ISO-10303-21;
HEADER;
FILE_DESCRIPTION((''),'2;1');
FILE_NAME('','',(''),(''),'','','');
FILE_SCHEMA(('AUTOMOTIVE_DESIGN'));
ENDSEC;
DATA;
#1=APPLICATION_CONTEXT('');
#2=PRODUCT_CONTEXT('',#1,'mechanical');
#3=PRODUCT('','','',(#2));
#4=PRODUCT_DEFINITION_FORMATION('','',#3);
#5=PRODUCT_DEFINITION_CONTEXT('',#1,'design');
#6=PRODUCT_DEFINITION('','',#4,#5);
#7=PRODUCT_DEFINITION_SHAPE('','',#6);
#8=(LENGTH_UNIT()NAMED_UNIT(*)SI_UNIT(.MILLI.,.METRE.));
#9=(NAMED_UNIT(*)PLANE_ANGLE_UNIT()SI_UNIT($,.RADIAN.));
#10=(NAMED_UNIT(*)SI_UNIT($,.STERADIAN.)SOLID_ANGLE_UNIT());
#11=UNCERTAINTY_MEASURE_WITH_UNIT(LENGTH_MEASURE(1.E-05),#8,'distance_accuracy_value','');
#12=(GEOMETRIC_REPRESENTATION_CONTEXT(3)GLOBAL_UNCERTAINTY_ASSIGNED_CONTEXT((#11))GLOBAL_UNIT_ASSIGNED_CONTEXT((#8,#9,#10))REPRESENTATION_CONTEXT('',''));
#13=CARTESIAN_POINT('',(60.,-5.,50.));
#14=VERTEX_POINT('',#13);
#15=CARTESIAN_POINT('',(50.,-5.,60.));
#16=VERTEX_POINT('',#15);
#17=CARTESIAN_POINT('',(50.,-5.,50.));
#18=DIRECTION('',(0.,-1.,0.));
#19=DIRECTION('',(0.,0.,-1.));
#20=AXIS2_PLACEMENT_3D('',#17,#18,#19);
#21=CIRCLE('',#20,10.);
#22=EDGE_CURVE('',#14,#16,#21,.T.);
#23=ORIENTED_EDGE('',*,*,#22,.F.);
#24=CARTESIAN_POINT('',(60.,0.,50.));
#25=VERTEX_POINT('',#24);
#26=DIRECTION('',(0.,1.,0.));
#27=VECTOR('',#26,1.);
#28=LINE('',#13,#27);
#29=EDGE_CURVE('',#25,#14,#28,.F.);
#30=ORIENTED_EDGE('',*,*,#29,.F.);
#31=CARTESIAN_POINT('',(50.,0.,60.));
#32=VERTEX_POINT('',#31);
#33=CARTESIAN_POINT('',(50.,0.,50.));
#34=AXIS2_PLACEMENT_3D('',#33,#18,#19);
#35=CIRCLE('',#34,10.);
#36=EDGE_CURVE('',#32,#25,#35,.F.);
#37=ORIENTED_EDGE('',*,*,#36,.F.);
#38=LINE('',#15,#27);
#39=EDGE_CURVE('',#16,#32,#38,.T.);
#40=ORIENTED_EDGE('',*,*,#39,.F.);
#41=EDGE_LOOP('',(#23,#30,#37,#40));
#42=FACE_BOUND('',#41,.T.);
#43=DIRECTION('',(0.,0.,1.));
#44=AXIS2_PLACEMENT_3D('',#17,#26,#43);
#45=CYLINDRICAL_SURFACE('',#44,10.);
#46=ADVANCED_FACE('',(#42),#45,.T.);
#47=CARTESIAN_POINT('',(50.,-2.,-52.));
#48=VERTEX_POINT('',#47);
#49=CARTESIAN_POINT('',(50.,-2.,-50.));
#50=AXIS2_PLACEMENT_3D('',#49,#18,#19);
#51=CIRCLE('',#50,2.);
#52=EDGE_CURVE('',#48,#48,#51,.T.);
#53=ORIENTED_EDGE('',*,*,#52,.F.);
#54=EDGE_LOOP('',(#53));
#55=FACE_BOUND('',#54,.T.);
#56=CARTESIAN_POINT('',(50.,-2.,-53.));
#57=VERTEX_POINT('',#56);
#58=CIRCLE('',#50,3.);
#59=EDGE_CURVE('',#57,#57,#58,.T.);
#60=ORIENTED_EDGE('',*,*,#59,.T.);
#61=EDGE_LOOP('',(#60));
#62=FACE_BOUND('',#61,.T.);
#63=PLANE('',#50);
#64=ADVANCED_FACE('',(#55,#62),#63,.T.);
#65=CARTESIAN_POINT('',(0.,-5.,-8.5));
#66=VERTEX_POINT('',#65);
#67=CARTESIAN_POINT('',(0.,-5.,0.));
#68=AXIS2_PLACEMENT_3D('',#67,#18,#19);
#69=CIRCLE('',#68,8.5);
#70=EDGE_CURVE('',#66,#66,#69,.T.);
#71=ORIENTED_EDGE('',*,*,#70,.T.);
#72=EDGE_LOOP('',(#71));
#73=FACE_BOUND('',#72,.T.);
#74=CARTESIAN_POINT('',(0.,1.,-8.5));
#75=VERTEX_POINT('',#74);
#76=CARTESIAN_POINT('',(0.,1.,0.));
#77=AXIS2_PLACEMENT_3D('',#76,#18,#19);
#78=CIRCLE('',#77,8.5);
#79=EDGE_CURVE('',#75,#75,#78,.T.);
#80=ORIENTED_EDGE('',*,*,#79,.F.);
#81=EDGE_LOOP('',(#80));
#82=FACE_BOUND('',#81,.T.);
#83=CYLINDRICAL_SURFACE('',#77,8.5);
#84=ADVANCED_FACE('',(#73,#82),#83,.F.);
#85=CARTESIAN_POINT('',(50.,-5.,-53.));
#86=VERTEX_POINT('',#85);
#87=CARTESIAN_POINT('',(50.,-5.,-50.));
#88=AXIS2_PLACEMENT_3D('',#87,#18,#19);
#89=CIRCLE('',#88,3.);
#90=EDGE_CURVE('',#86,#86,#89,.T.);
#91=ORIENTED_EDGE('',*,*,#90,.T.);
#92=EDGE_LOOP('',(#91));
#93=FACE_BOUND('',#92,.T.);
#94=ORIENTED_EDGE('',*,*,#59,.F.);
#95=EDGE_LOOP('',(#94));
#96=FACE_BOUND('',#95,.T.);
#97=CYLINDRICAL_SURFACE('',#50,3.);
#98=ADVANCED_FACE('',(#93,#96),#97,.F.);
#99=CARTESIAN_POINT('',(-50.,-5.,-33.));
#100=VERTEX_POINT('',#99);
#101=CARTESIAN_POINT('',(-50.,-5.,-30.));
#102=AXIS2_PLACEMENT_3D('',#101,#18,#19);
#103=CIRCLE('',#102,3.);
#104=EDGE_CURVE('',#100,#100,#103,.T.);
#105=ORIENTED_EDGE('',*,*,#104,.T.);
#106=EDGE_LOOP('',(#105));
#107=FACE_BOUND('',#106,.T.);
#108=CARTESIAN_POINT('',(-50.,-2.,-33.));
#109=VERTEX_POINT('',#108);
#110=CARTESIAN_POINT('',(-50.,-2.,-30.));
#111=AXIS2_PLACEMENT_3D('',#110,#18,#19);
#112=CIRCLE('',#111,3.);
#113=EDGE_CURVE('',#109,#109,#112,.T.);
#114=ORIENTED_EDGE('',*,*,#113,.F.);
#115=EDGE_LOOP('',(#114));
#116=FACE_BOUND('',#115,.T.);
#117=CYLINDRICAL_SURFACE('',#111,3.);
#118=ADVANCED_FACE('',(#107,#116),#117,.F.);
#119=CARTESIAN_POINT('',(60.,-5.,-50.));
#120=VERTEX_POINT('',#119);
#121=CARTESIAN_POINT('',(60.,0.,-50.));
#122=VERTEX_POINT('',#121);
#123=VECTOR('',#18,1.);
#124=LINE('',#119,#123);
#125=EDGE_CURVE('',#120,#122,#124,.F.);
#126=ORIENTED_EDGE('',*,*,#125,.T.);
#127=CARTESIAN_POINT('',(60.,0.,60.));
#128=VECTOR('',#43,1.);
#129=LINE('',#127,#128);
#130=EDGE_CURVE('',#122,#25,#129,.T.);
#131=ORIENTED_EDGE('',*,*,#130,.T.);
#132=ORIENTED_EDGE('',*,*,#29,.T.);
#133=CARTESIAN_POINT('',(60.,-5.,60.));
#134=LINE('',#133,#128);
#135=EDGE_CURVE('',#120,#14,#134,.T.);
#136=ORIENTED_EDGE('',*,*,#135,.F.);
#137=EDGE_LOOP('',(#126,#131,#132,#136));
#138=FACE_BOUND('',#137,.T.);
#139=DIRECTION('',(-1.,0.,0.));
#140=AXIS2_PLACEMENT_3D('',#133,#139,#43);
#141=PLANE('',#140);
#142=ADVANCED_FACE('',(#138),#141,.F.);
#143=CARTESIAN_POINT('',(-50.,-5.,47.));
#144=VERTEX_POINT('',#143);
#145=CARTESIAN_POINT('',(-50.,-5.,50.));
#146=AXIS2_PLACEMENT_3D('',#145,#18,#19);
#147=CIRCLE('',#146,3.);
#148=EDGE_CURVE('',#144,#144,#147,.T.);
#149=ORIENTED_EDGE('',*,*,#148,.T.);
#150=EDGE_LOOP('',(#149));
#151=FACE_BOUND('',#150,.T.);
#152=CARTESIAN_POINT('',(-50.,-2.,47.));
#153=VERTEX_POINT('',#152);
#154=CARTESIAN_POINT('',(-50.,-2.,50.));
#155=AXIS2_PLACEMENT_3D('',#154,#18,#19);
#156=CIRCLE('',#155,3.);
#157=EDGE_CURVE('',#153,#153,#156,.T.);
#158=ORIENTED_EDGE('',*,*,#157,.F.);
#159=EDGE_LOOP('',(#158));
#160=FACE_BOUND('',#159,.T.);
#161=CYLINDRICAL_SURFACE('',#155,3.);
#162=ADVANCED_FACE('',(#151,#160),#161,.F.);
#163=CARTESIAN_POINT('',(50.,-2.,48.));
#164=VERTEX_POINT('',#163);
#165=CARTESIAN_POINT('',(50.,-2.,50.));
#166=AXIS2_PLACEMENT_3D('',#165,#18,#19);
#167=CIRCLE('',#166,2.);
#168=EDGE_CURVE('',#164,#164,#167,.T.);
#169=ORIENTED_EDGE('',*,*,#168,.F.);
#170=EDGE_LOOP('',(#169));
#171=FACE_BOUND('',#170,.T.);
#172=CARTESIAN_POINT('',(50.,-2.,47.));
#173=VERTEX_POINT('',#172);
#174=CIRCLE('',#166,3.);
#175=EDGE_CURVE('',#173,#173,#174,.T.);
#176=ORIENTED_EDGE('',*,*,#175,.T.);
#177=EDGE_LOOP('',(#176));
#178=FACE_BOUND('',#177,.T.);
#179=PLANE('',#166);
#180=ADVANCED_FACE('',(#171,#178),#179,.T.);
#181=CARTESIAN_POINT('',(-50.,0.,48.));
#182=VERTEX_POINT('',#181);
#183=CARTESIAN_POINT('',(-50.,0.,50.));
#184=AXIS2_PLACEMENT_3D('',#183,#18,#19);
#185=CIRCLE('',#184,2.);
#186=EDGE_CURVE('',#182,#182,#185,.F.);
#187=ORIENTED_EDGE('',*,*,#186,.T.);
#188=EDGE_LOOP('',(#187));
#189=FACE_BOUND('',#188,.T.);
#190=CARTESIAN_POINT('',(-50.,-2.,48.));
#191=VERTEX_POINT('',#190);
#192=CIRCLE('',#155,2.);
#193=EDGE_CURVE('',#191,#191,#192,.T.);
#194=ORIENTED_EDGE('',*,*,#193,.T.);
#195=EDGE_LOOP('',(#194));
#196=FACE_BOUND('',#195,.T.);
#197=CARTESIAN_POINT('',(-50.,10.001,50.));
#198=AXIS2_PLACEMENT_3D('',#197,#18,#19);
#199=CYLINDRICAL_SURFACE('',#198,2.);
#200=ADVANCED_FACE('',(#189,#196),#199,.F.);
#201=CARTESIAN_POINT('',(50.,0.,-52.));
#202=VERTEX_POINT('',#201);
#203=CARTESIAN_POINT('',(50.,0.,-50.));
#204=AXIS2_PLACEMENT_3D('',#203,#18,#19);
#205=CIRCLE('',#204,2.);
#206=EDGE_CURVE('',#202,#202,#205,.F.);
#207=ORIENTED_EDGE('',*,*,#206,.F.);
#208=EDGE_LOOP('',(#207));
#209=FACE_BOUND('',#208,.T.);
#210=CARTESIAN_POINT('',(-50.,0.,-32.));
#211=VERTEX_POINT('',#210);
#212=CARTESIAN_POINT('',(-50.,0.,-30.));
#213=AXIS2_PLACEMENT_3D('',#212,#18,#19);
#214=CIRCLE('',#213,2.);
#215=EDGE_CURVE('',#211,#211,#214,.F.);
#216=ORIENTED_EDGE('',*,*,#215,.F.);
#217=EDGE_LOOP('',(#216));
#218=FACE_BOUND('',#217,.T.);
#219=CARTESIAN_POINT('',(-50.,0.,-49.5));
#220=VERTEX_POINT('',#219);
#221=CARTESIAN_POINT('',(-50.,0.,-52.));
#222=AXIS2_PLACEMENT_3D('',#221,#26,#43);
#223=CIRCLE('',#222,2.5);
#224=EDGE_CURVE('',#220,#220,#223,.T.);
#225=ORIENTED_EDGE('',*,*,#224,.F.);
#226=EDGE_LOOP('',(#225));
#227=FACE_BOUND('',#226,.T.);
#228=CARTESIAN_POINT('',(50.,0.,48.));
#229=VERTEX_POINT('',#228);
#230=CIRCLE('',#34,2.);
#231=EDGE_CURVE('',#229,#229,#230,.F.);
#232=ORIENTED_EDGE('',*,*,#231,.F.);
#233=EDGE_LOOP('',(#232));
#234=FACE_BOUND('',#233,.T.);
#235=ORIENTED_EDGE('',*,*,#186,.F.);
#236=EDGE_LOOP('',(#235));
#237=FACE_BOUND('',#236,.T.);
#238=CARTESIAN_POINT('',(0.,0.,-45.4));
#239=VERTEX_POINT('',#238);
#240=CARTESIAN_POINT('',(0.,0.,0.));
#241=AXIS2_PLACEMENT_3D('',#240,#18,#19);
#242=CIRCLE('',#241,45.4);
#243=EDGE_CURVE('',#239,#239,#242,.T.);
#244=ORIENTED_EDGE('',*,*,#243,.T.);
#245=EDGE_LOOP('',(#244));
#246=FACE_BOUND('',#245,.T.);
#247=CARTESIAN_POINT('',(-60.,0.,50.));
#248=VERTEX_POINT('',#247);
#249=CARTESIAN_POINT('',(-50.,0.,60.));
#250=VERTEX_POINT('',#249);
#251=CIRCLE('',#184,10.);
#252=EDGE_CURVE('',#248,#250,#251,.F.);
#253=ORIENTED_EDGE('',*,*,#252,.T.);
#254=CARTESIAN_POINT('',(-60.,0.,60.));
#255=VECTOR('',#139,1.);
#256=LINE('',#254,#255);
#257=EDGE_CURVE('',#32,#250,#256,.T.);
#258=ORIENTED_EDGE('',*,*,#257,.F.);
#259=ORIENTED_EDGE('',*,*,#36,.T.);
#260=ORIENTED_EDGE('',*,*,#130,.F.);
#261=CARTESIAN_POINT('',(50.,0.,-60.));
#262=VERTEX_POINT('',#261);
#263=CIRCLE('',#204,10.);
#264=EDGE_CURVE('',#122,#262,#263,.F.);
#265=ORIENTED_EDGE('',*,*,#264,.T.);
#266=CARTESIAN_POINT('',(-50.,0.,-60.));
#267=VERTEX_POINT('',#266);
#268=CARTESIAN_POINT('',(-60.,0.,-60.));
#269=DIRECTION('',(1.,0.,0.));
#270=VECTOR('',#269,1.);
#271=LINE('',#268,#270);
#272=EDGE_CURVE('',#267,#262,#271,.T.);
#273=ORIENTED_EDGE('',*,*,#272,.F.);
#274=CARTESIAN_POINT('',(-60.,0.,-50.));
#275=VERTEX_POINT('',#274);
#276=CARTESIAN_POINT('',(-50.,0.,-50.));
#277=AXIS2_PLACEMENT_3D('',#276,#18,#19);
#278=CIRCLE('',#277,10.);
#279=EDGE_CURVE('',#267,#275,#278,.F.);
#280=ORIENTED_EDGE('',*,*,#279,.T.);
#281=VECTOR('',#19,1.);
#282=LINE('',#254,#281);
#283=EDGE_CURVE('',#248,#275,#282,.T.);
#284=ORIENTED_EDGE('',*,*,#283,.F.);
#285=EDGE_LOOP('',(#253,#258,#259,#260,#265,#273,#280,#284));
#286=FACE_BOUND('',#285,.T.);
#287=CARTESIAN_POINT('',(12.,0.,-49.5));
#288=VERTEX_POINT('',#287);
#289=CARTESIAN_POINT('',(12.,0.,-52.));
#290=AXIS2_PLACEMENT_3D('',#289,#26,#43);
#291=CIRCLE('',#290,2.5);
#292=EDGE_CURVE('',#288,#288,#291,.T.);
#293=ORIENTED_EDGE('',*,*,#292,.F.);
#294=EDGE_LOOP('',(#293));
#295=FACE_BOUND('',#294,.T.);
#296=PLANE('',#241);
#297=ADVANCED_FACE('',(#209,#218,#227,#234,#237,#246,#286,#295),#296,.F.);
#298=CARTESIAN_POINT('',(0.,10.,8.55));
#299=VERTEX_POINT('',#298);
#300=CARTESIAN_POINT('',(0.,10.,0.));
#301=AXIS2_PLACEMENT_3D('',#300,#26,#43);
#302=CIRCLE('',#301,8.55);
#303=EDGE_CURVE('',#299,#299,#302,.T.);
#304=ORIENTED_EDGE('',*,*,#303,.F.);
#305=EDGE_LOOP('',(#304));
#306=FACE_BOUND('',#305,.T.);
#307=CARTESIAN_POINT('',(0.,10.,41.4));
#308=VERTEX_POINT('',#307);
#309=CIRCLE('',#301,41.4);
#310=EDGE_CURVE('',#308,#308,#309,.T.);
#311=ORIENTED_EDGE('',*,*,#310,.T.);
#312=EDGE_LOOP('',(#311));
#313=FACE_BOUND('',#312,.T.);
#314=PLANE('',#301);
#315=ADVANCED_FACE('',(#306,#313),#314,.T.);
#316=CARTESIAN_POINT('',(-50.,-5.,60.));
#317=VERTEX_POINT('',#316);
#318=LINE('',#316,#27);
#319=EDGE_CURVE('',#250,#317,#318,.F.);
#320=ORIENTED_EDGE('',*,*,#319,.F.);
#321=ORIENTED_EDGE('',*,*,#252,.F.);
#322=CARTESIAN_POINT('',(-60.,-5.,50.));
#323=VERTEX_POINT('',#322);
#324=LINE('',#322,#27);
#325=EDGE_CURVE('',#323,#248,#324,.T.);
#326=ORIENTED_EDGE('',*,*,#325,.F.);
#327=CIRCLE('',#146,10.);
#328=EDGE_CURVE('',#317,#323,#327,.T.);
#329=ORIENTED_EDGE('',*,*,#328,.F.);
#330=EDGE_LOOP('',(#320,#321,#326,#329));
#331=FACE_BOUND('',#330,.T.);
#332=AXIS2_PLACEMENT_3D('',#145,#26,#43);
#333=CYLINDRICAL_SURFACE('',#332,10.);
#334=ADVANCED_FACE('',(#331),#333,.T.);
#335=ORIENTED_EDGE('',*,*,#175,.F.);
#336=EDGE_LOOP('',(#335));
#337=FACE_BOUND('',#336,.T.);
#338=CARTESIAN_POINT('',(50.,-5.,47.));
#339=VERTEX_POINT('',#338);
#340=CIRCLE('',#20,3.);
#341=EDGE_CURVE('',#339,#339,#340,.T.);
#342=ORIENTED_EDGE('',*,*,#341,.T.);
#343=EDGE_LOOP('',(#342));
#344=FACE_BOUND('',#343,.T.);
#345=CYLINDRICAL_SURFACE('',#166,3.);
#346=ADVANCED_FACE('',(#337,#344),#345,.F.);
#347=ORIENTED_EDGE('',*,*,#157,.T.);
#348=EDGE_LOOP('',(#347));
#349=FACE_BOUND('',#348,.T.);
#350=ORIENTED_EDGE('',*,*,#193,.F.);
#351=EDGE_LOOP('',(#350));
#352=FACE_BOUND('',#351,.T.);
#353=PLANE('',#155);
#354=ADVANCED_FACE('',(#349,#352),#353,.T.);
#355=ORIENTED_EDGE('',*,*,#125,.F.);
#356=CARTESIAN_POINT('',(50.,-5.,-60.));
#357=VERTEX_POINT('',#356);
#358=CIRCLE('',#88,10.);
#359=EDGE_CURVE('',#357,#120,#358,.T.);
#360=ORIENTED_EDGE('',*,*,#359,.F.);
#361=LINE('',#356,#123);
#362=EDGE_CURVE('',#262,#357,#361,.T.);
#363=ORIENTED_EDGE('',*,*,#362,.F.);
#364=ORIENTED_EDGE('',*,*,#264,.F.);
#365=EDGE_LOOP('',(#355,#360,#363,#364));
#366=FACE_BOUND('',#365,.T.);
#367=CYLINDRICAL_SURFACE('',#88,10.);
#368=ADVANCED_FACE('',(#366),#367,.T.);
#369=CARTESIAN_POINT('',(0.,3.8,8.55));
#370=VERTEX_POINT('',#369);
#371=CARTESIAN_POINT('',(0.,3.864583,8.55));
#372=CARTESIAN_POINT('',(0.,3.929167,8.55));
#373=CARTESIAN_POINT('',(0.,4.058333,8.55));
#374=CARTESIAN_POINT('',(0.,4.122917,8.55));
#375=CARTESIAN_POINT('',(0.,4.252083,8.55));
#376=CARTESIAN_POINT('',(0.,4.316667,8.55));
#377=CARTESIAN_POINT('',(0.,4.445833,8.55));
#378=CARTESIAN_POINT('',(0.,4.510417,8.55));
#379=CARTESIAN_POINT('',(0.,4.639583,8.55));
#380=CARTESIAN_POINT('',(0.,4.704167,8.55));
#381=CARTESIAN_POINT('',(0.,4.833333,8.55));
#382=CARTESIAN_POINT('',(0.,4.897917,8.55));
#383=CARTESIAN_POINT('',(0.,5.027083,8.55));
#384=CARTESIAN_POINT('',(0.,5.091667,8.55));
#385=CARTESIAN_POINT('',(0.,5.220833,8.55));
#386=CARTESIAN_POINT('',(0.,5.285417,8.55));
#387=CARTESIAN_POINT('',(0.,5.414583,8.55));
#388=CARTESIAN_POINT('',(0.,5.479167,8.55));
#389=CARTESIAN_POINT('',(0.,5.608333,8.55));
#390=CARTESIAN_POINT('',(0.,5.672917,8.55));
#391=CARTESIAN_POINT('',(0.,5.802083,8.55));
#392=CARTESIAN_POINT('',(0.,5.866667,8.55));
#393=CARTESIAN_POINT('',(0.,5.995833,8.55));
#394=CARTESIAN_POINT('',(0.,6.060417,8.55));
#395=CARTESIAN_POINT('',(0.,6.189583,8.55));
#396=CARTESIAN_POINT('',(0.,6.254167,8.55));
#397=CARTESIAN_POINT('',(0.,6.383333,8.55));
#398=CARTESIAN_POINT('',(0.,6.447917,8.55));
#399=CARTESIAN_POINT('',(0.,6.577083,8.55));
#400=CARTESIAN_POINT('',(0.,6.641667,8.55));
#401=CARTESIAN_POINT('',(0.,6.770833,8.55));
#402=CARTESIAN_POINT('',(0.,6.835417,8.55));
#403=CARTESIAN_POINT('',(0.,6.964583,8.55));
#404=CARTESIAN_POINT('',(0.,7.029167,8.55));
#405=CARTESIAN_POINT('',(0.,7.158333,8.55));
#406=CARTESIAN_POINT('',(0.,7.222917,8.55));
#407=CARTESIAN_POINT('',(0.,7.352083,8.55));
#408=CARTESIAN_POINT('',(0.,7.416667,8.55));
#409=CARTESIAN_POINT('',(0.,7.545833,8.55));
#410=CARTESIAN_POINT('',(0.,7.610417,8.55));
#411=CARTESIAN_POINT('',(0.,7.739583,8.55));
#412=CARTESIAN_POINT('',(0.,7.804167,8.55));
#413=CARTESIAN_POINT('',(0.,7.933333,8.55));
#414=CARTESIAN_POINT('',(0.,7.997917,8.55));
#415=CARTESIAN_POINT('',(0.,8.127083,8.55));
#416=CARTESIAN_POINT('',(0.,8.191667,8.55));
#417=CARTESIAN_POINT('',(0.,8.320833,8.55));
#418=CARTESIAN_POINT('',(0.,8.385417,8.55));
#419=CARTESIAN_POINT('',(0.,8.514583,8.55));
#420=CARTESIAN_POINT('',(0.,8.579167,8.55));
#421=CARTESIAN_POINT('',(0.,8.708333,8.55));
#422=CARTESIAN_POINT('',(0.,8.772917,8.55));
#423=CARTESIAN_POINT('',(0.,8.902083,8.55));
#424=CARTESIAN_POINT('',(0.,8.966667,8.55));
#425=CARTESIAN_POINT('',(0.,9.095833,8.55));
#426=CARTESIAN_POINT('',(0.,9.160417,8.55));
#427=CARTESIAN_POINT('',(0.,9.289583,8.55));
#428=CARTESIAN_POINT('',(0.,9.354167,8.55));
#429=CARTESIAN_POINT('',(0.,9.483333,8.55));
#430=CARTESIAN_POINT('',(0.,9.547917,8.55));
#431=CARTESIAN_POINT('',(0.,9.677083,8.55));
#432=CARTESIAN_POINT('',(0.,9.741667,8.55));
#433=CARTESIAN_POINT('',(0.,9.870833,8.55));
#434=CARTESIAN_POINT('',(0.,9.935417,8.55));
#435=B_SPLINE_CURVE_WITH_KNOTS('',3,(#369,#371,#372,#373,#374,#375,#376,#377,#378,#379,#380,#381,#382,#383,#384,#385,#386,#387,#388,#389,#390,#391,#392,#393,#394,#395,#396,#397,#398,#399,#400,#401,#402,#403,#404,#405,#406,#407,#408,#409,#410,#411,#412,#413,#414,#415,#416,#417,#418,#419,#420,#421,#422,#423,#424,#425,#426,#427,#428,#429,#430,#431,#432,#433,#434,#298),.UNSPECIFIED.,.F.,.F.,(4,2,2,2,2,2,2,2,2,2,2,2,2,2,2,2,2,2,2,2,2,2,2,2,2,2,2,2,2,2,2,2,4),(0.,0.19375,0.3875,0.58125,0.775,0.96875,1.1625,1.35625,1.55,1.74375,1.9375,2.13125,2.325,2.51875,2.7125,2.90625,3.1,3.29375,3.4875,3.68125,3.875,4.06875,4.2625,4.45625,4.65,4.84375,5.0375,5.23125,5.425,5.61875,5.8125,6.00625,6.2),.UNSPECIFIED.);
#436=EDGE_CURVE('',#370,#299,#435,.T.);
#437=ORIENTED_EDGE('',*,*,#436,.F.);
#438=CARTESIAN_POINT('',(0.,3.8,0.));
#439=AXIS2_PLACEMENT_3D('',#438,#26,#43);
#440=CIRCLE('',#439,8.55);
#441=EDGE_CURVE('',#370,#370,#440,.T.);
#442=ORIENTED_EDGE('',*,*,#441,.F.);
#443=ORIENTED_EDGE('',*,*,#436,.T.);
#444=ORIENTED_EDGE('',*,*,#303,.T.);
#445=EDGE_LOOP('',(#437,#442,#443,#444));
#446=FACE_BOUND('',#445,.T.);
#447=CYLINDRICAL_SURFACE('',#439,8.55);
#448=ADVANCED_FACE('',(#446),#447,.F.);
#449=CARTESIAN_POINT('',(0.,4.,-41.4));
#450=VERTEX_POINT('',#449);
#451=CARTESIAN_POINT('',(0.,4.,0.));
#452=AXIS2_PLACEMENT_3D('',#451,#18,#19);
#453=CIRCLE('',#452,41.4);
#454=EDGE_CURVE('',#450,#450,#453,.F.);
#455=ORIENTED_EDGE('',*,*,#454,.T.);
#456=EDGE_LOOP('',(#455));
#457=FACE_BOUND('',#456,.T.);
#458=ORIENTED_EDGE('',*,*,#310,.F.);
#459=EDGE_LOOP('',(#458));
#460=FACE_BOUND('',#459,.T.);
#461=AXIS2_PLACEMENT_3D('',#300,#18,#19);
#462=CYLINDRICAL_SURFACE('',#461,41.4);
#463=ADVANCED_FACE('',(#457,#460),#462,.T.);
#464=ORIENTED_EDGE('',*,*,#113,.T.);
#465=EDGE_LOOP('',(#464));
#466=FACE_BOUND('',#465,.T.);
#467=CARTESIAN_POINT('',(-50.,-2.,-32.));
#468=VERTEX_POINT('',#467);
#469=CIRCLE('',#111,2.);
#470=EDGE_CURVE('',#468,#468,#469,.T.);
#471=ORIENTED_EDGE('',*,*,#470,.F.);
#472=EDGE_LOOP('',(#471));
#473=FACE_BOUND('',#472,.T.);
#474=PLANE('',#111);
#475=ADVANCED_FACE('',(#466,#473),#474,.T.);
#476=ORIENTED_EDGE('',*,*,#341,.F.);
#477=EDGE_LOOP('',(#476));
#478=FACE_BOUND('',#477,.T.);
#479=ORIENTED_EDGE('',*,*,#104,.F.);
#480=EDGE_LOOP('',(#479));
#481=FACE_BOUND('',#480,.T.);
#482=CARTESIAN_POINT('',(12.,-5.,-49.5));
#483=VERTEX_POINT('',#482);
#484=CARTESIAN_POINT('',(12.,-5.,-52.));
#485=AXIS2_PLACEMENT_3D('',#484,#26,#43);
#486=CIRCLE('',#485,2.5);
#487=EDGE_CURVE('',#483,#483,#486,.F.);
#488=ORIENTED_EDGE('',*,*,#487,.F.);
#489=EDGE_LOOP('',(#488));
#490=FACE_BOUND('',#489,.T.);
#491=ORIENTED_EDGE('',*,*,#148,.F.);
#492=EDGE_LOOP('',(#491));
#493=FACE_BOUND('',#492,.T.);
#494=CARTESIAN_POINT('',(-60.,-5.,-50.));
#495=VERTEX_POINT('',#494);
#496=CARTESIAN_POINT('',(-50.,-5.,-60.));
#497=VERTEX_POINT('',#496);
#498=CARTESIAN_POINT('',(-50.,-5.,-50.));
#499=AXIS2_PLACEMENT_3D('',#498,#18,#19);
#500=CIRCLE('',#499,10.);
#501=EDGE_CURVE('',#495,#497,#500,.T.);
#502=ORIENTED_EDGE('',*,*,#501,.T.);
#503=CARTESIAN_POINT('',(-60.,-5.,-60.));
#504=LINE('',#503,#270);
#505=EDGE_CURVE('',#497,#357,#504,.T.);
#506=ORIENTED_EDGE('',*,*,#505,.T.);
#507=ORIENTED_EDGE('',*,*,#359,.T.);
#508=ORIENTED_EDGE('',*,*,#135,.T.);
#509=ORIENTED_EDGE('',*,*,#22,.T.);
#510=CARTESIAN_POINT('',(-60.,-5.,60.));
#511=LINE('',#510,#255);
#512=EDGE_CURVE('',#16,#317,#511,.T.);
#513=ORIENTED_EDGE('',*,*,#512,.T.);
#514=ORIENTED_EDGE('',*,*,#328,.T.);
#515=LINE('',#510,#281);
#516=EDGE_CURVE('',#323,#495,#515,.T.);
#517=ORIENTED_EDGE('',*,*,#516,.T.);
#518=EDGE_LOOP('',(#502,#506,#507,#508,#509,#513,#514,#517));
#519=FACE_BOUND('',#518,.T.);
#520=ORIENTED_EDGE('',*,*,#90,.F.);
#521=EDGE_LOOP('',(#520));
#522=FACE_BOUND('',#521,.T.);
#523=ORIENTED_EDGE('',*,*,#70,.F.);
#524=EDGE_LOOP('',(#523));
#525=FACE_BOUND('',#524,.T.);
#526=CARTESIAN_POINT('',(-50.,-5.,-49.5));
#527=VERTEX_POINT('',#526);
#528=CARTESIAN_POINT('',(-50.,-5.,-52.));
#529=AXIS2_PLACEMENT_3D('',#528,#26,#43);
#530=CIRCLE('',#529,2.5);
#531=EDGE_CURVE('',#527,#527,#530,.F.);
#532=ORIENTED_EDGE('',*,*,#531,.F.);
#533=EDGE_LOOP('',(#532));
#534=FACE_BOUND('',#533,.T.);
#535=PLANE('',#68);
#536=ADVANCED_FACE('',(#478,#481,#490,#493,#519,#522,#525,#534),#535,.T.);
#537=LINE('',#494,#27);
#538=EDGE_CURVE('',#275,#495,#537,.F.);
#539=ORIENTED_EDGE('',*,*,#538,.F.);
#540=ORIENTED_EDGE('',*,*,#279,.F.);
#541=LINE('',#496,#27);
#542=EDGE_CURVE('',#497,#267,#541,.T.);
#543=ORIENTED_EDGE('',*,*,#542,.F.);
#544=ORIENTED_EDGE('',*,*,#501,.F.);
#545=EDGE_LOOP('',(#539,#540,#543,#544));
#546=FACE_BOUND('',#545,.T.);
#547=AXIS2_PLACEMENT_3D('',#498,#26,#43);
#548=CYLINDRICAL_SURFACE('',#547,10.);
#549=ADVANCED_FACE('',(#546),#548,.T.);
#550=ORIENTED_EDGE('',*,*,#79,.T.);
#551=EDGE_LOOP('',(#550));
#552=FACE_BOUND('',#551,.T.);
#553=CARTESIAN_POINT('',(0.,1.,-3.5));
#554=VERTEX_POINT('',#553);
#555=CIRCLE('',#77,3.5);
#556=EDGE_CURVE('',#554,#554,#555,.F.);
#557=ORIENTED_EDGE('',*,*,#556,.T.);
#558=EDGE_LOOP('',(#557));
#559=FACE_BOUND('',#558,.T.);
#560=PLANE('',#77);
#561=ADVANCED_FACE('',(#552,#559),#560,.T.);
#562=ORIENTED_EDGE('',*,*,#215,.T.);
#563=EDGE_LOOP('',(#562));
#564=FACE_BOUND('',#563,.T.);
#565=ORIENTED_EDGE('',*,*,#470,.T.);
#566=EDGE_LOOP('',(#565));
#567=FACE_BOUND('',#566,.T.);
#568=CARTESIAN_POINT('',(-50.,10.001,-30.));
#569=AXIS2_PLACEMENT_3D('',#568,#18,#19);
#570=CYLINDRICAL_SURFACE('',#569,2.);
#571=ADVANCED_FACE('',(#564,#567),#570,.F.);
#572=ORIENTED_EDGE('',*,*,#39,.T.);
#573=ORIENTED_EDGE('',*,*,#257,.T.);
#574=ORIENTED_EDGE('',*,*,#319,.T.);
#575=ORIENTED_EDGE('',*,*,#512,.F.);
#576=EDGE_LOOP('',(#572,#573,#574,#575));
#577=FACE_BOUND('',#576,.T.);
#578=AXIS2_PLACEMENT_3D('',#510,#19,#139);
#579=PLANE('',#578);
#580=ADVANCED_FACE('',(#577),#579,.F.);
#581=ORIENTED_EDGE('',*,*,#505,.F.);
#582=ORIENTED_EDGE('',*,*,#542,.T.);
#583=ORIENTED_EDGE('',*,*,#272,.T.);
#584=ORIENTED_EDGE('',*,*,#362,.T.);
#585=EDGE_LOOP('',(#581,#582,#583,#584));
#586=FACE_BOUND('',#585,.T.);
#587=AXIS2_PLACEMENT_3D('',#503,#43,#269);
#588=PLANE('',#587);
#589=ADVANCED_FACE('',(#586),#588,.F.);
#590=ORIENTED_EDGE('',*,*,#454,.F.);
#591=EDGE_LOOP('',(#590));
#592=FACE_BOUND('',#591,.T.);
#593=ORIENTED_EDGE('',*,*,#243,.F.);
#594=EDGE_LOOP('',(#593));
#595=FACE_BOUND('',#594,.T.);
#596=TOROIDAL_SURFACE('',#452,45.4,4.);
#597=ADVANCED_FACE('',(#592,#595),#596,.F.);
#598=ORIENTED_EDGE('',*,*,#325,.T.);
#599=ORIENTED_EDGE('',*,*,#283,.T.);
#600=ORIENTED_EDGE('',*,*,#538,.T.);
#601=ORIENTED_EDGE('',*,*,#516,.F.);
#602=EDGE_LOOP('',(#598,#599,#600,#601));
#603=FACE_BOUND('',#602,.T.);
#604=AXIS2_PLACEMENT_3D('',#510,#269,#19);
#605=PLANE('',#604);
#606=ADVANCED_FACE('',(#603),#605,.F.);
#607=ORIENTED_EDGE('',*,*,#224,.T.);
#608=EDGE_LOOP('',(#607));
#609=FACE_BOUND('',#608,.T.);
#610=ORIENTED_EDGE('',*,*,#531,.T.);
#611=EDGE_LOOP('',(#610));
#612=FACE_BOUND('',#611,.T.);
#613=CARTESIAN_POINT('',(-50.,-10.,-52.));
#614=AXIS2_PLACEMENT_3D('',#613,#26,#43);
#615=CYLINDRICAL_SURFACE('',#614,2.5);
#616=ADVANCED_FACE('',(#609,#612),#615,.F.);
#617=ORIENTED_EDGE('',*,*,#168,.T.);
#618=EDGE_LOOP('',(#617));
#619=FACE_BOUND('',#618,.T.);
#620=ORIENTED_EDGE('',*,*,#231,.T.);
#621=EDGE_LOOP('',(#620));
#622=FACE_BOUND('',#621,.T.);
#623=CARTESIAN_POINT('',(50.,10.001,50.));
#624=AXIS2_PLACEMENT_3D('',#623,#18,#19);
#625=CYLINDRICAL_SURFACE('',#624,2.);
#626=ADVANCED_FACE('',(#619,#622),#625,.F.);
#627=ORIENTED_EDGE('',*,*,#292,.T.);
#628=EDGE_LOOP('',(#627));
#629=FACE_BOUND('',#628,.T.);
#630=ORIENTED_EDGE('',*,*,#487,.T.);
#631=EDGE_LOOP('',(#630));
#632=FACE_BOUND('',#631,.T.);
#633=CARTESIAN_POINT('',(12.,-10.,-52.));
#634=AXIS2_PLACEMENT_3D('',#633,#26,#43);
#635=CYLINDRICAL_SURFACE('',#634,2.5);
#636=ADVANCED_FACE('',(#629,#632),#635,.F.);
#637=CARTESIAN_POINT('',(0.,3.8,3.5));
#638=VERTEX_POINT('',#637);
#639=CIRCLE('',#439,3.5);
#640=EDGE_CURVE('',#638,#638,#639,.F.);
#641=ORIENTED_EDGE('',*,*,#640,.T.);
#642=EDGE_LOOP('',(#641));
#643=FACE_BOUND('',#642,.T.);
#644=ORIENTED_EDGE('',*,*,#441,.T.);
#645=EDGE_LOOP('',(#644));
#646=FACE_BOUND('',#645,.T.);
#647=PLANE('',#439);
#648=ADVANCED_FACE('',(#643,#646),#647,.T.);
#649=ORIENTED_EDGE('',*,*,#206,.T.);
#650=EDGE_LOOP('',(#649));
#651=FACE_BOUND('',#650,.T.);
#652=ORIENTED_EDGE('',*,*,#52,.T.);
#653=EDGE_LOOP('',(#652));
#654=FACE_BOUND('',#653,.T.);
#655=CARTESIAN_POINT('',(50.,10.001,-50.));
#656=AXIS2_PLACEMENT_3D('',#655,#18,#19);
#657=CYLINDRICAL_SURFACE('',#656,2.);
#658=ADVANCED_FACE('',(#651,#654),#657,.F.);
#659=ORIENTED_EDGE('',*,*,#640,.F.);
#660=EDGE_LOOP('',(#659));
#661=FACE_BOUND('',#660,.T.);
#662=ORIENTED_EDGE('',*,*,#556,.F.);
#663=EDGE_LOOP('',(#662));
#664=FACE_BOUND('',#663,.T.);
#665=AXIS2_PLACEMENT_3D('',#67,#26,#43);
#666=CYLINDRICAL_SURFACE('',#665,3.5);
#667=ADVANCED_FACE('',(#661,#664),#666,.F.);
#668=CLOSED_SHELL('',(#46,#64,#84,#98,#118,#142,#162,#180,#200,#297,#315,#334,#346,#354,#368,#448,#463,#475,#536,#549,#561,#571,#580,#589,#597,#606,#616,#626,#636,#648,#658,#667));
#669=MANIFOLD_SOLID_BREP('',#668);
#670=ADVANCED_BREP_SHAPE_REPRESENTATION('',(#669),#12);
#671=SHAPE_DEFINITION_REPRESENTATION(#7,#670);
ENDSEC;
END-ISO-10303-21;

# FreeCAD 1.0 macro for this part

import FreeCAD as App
import Part
import Sketcher


def edges_at(feature, points):
    """Names of the edges that pass closest to the given points."""
    edges = feature.Shape.Edges
    near = lambda p: min(range(len(edges)), key=lambda i: edges[i].distToShape(Part.Vertex(*p))[0])
    return sorted({f"Edge{near(p) + 1}" for p in points})

doc = App.newDocument("Part")
body = doc.addObject("PartDesign::Body", "Body")

# Sketch on XZ plane
sketch1 = body.newObject("Sketcher::SketchObject", "Sketch")
sketch1.AttachmentSupport = (doc.getObject("XZ_Plane"), [""])
sketch1.MapMode = "FlatFace"
sketch1.addGeometry(Part.Circle(App.Vector(0, 0, 0), App.Vector(0, 0, 1), 41.4), False)
sketch1.addConstraint([
    Sketcher.Constraint("Coincident", 0, 3, -1, 1),
    Sketcher.Constraint("Diameter", 0, 82.8),
])
pad1 = body.newObject("PartDesign::Pad", "Pad")
pad1.Profile = sketch1
pad1.Length = 10
pad1.Reversed = True

# Sketch on XZ plane
sketch2 = body.newObject("Sketcher::SketchObject", "Sketch001")
sketch2.AttachmentSupport = (doc.getObject("XZ_Plane"), [""])
sketch2.MapMode = "FlatFace"
sketch2.addGeometry([
    Part.LineSegment(App.Vector(-60, 60, 0), App.Vector(-60, -60, 0)),
    Part.LineSegment(App.Vector(-60, -60, 0), App.Vector(60, -60, 0)),
    Part.LineSegment(App.Vector(60, -60, 0), App.Vector(60, 60, 0)),
    Part.LineSegment(App.Vector(60, 60, 0), App.Vector(-60, 60, 0)),
], False)
sketch2.addConstraint([
    Sketcher.Constraint("Coincident", 0, 2, 1, 1),
    Sketcher.Constraint("Coincident", 1, 2, 2, 1),
    Sketcher.Constraint("Coincident", 2, 2, 3, 1),
    Sketcher.Constraint("Coincident", 3, 2, 0, 1),
    Sketcher.Constraint("Vertical", 0),
    Sketcher.Constraint("Horizontal", 1),
    Sketcher.Constraint("Vertical", 2),
    Sketcher.Constraint("Horizontal", 3),
    Sketcher.Constraint("Symmetric", 0, 2, 2, 2, -1, 1),
    Sketcher.Constraint("Equal", 3, 0),
    Sketcher.Constraint("DistanceX", 1, 1, 1, 2, 120.0),
])
pad2 = body.newObject("PartDesign::Pad", "Pad001")
pad2.Profile = sketch2
pad2.Length = 5

# Sketch on XZ plane
sketch3 = body.newObject("Sketcher::SketchObject", "Sketch002")
sketch3.AttachmentSupport = (doc.getObject("XZ_Plane"), [""])
sketch3.MapMode = "FlatFace"
sketch3.AttachmentOffset = App.Placement(App.Vector(0, 0, -10), App.Rotation())
sketch3.addGeometry(Part.Circle(App.Vector(0, 0, 0), App.Vector(0, 0, 1), 3.5), False)
sketch3.addConstraint([
    Sketcher.Constraint("Coincident", 0, 3, -1, 1),
    Sketcher.Constraint("Diameter", 0, 7.0),
])
pocket1 = body.newObject("PartDesign::Pocket", "Pocket")
pocket1.Profile = sketch3
pocket1.Type = "ThroughAll"
pocket1.Reversed = True

# Sketch on XZ plane
sketch4 = body.newObject("Sketcher::SketchObject", "Sketch003")
sketch4.AttachmentSupport = (doc.getObject("XZ_Plane"), [""])
sketch4.MapMode = "FlatFace"
sketch4.AttachmentOffset = App.Placement(App.Vector(0, 0, 5), App.Rotation())
sketch4.addGeometry(Part.Circle(App.Vector(0, 0, 0), App.Vector(0, 0, 1), 8.5), False)
sketch4.addConstraint([
    Sketcher.Constraint("Coincident", 0, 3, -1, 1),
    Sketcher.Constraint("Diameter", 0, 17.0),
])
pocket2 = body.newObject("PartDesign::Pocket", "Pocket001")
pocket2.Profile = sketch4
pocket2.Length = 6

# Sketch on XY plane
sketch5 = body.newObject("Sketcher::SketchObject", "Sketch004")
sketch5.AttachmentSupport = (doc.getObject("XY_Plane"), [""])
sketch5.MapMode = "FlatFace"
sketch5.AttachmentOffset = App.Placement(App.Vector(0, 0, -43), App.Rotation())
sketch5.addGeometry([
    Part.LineSegment(App.Vector(-40.65, -5, 0), App.Vector(-40.65, -47.3, 0)),
    Part.LineSegment(App.Vector(-40.65, -47.3, 0), App.Vector(1.65, -47.3, 0)),
    Part.LineSegment(App.Vector(1.65, -47.3, 0), App.Vector(1.65, -5, 0)),
    Part.LineSegment(App.Vector(1.65, -5, 0), App.Vector(-40.65, -5, 0)),
], False)
sketch5.addConstraint([
    Sketcher.Constraint("Coincident", 0, 2, 1, 1),
    Sketcher.Constraint("Coincident", 1, 2, 2, 1),
    Sketcher.Constraint("Coincident", 2, 2, 3, 1),
    Sketcher.Constraint("Coincident", 3, 2, 0, 1),
    Sketcher.Constraint("Vertical", 0),
    Sketcher.Constraint("Horizontal", 1),
    Sketcher.Constraint("Vertical", 2),
    Sketcher.Constraint("Horizontal", 3),
    Sketcher.Constraint("Equal", 3, 0),
    Sketcher.Constraint("DistanceX", 1, 1, 1, 2, 42.3),
    Sketcher.Constraint("DistanceY", 2, 2, -1, 1, 5.0),
    Sketcher.Constraint("DistanceX", 0, 2, -1, 1, 40.65),
])
pad3 = body.newObject("PartDesign::Pad", "Pad002")
pad3.Profile = sketch5
pad3.Length = 5
pad3.Reversed = True
doc.recompute()

fillet = body.newObject("PartDesign::Fillet", "Fillet")
fillet.Base = (pad3, edges_at(pad3, [(0, 0, -41.4)]))
fillet.Radius = 4

# Sketch on XY plane
sketch6 = body.newObject("Sketcher::SketchObject", "Sketch005")
sketch6.AttachmentSupport = (doc.getObject("XY_Plane"), [""])
sketch6.MapMode = "FlatFace"
sketch6.AttachmentOffset = App.Placement(App.Vector(0, 0, -48), App.Rotation())
sketch6.addGeometry(Part.Circle(App.Vector(-4, -10.65, 0), App.Vector(0, 0, 1), 2), False)
sketch6.addConstraint([
    Sketcher.Constraint("Diameter", 0, 4.0),
    Sketcher.Constraint("DistanceX", 0, 3, -1, 1, 4.0),
    Sketcher.Constraint("DistanceY", 0, 3, -1, 1, 10.65),
])
pocket3 = body.newObject("PartDesign::Pocket", "Pocket002")
pocket3.Profile = sketch6
pocket3.Type = "UpToFirst"
pocket3.Reversed = True

# Sketch on XY plane
sketch7 = body.newObject("Sketcher::SketchObject", "Sketch006")
sketch7.AttachmentSupport = (doc.getObject("XY_Plane"), [""])
sketch7.MapMode = "FlatFace"
sketch7.AttachmentOffset = App.Placement(App.Vector(0, 0, -48), App.Rotation())
sketch7.addGeometry(Part.Circle(App.Vector(-35, -10.65, 0), App.Vector(0, 0, 1), 2), False)
sketch7.addConstraint([
    Sketcher.Constraint("Diameter", 0, 4.0),
    Sketcher.Constraint("DistanceX", 0, 3, -1, 1, 35.0),
    Sketcher.Constraint("DistanceY", 0, 3, -1, 1, 10.65),
])
pocket4 = body.newObject("PartDesign::Pocket", "Pocket003")
pocket4.Profile = sketch7
pocket4.Type = "UpToFirst"
pocket4.Reversed = True

# Sketch on XY plane
sketch8 = body.newObject("Sketcher::SketchObject", "Sketch007")
sketch8.AttachmentSupport = (doc.getObject("XY_Plane"), [""])
sketch8.MapMode = "FlatFace"
sketch8.AttachmentOffset = App.Placement(App.Vector(0, 0, -48), App.Rotation())
sketch8.addGeometry(Part.Circle(App.Vector(-35, -41.65, 0), App.Vector(0, 0, 1), 2), False)
sketch8.addConstraint([
    Sketcher.Constraint("Diameter", 0, 4.0),
    Sketcher.Constraint("DistanceX", 0, 3, -1, 1, 35.0),
    Sketcher.Constraint("DistanceY", 0, 3, -1, 1, 41.65),
])
pocket5 = body.newObject("PartDesign::Pocket", "Pocket004")
pocket5.Profile = sketch8
pocket5.Type = "UpToFirst"
pocket5.Reversed = True

# Sketch on XY plane
sketch9 = body.newObject("Sketcher::SketchObject", "Sketch008")
sketch9.AttachmentSupport = (doc.getObject("XY_Plane"), [""])
sketch9.MapMode = "FlatFace"
sketch9.AttachmentOffset = App.Placement(App.Vector(0, 0, -48), App.Rotation())
sketch9.addGeometry(Part.Circle(App.Vector(-4, -41.65, 0), App.Vector(0, 0, 1), 2), False)
sketch9.addConstraint([
    Sketcher.Constraint("Diameter", 0, 4.0),
    Sketcher.Constraint("DistanceX", 0, 3, -1, 1, 4.0),
    Sketcher.Constraint("DistanceY", 0, 3, -1, 1, 41.65),
])
pocket6 = body.newObject("PartDesign::Pocket", "Pocket005")
pocket6.Profile = sketch9
pocket6.Type = "UpToFirst"
pocket6.Reversed = True

# Sketch on XY plane
sketch10 = body.newObject("Sketcher::SketchObject", "Sketch009")
sketch10.AttachmentSupport = (doc.getObject("XY_Plane"), [""])
sketch10.MapMode = "FlatFace"
sketch10.AttachmentOffset = App.Placement(App.Vector(0, 0, -48), App.Rotation())
sketch10.addGeometry(Part.Circle(App.Vector(-19.5, -26.15, 0), App.Vector(0, 0, 1), 11.5), False)
sketch10.addConstraint([
    Sketcher.Constraint("Diameter", 0, 23.0),
    Sketcher.Constraint("DistanceX", 0, 3, -1, 1, 19.5),
    Sketcher.Constraint("DistanceY", 0, 3, -1, 1, 26.15),
])
pocket7 = body.newObject("PartDesign::Pocket", "Pocket006")
pocket7.Profile = sketch10
pocket7.Type = "UpToFirst"
pocket7.Reversed = True

# Sketch on XZ plane
sketch11 = body.newObject("Sketcher::SketchObject", "Sketch010")
sketch11.AttachmentSupport = (doc.getObject("XZ_Plane"), [""])
sketch11.MapMode = "FlatFace"
sketch11.AttachmentOffset = App.Placement(App.Vector(0, 0, 5), App.Rotation())
sketch11.addGeometry([
    Part.Circle(App.Vector(-50, 50, 0), App.Vector(0, 0, 1), 3),
    Part.Circle(App.Vector(50, 50, 0), App.Vector(0, 0, 1), 3),
    Part.Circle(App.Vector(50, -50, 0), App.Vector(0, 0, 1), 3),
    Part.Circle(App.Vector(-50, -30, 0), App.Vector(0, 0, 1), 3),
], False)
sketch11.addConstraint([
    Sketcher.Constraint("Equal", 0, 1),
    Sketcher.Constraint("Equal", 1, 2),
    Sketcher.Constraint("Equal", 2, 3),
    Sketcher.Constraint("Symmetric", 0, 3, 2, 3, -1, 1),
    Sketcher.Constraint("Symmetric", 0, 3, 1, 3, -2),
    Sketcher.Constraint("Vertical", 0, 3, 3, 3),
    Sketcher.Constraint("Diameter", 0, 6.0),
    Sketcher.Constraint("DistanceX", 0, 3, -1, 1, 50.0),
    Sketcher.Constraint("DistanceY", -1, 1, 0, 3, 50.0),
    Sketcher.Constraint("DistanceY", 3, 3, -1, 1, 30.0),
])
pocket8 = body.newObject("PartDesign::Pocket", "Pocket007")
pocket8.Profile = sketch11
pocket8.Length = 3

# Sketch on XZ plane
sketch12 = body.newObject("Sketcher::SketchObject", "Sketch011")
sketch12.AttachmentSupport = (doc.getObject("XZ_Plane"), [""])
sketch12.MapMode = "FlatFace"
sketch12.AttachmentOffset = App.Placement(App.Vector(0, 0, 2), App.Rotation())
sketch12.addGeometry(Part.Circle(App.Vector(-50, 50, 0), App.Vector(0, 0, 1), 2), False)
sketch12.addConstraint([
    Sketcher.Constraint("Diameter", 0, 4.0),
    Sketcher.Constraint("DistanceX", 0, 3, -1, 1, 50.0),
    Sketcher.Constraint("DistanceY", -1, 1, 0, 3, 50.0),
])
pocket9 = body.newObject("PartDesign::Pocket", "Pocket008")
pocket9.Profile = sketch12
pocket9.Type = "UpToFirst"

# Sketch on XZ plane
sketch13 = body.newObject("Sketcher::SketchObject", "Sketch012")
sketch13.AttachmentSupport = (doc.getObject("XZ_Plane"), [""])
sketch13.MapMode = "FlatFace"
sketch13.AttachmentOffset = App.Placement(App.Vector(0, 0, 2), App.Rotation())
sketch13.addGeometry(Part.Circle(App.Vector(50, 50, 0), App.Vector(0, 0, 1), 2), False)
sketch13.addConstraint([
    Sketcher.Constraint("Diameter", 0, 4.0),
    Sketcher.Constraint("DistanceX", -1, 1, 0, 3, 50.0),
    Sketcher.Constraint("DistanceY", -1, 1, 0, 3, 50.0),
])
pocket10 = body.newObject("PartDesign::Pocket", "Pocket009")
pocket10.Profile = sketch13
pocket10.Type = "UpToFirst"

# Sketch on XZ plane
sketch14 = body.newObject("Sketcher::SketchObject", "Sketch013")
sketch14.AttachmentSupport = (doc.getObject("XZ_Plane"), [""])
sketch14.MapMode = "FlatFace"
sketch14.AttachmentOffset = App.Placement(App.Vector(0, 0, 2), App.Rotation())
sketch14.addGeometry(Part.Circle(App.Vector(50, -50, 0), App.Vector(0, 0, 1), 2), False)
sketch14.addConstraint([
    Sketcher.Constraint("Diameter", 0, 4.0),
    Sketcher.Constraint("DistanceX", -1, 1, 0, 3, 50.0),
    Sketcher.Constraint("DistanceY", 0, 3, -1, 1, 50.0),
])
pocket11 = body.newObject("PartDesign::Pocket", "Pocket010")
pocket11.Profile = sketch14
pocket11.Type = "UpToFirst"

# Sketch on XZ plane
sketch15 = body.newObject("Sketcher::SketchObject", "Sketch014")
sketch15.AttachmentSupport = (doc.getObject("XZ_Plane"), [""])
sketch15.MapMode = "FlatFace"
sketch15.AttachmentOffset = App.Placement(App.Vector(0, 0, 2), App.Rotation())
sketch15.addGeometry(Part.Circle(App.Vector(-50, -30, 0), App.Vector(0, 0, 1), 2), False)
sketch15.addConstraint([
    Sketcher.Constraint("Diameter", 0, 4.0),
    Sketcher.Constraint("DistanceX", 0, 3, -1, 1, 50.0),
    Sketcher.Constraint("DistanceY", 0, 3, -1, 1, 30.0),
])
pocket12 = body.newObject("PartDesign::Pocket", "Pocket011")
pocket12.Profile = sketch15
pocket12.Type = "UpToFirst"

# Sketch on YZ plane
sketch16 = body.newObject("Sketcher::SketchObject", "Sketch015")
sketch16.AttachmentSupport = (doc.getObject("YZ_Plane"), [""])
sketch16.MapMode = "FlatFace"
sketch16.AttachmentOffset = App.Placement(App.Vector(0, 0, 1.65), App.Rotation())
sketch16.addGeometry([
    Part.LineSegment(App.Vector(-5, -43, 0), App.Vector(-47.3, -43, 0)),
    Part.LineSegment(App.Vector(-47.3, -43, 0), App.Vector(-47.3, -60, 0)),
    Part.LineSegment(App.Vector(-47.3, -60, 0), App.Vector(-5, -60, 0)),
    Part.LineSegment(App.Vector(-5, -60, 0), App.Vector(-5, -43, 0)),
], False)
sketch16.addConstraint([
    Sketcher.Constraint("Coincident", 0, 2, 1, 1),
    Sketcher.Constraint("Coincident", 1, 2, 2, 1),
    Sketcher.Constraint("Coincident", 2, 2, 3, 1),
    Sketcher.Constraint("Coincident", 3, 2, 0, 1),
    Sketcher.Constraint("Horizontal", 0),
    Sketcher.Constraint("Vertical", 1),
    Sketcher.Constraint("Horizontal", 2),
    Sketcher.Constraint("Vertical", 3),
    Sketcher.Constraint("DistanceY", 1, 2, 1, 1, 17.0),
    Sketcher.Constraint("DistanceX", 0, 2, 0, 1, 42.3),
    Sketcher.Constraint("DistanceY", 0, 2, -1, 1, 43.0),
    Sketcher.Constraint("DistanceX", 2, 2, -1, 1, 5.0),
])
pad4 = body.newObject("PartDesign::Pad", "Pad003")
pad4.Profile = sketch16
pad4.Length = 3

# Sketch on YZ plane
sketch17 = body.newObject("Sketcher::SketchObject", "Sketch016")
sketch17.AttachmentSupport = (doc.getObject("YZ_Plane"), [""])
sketch17.MapMode = "FlatFace"
sketch17.AttachmentOffset = App.Placement(App.Vector(0, 0, -40.65), App.Rotation())
sketch17.addGeometry([
    Part.LineSegment(App.Vector(-5, -60, 0), App.Vector(-47.3, -60, 0)),
    Part.LineSegment(App.Vector(-47.3, -60, 0), App.Vector(-47.3, -43, 0)),
    Part.LineSegment(App.Vector(-47.3, -43, 0), App.Vector(-5, -43, 0)),
    Part.LineSegment(App.Vector(-5, -43, 0), App.Vector(-5, -60, 0)),
], False)
sketch17.addConstraint([
    Sketcher.Constraint("Coincident", 0, 2, 1, 1),
    Sketcher.Constraint("Coincident", 1, 2, 2, 1),
    Sketcher.Constraint("Coincident", 2, 2, 3, 1),
    Sketcher.Constraint("Coincident", 3, 2, 0, 1),
    Sketcher.Constraint("Horizontal", 0),
    Sketcher.Constraint("Vertical", 1),
    Sketcher.Constraint("Horizontal", 2),
    Sketcher.Constraint("Vertical", 3),
    Sketcher.Constraint("DistanceY", 1, 1, 1, 2, 17.0),
    Sketcher.Constraint("DistanceX", 0, 2, 0, 1, 42.3),
    Sketcher.Constraint("DistanceY", 0, 2, -1, 1, 60.0),
    Sketcher.Constraint("DistanceX", 2, 2, -1, 1, 5.0),
])
pad5 = body.newObject("PartDesign::Pad", "Pad004")
pad5.Profile = sketch17
pad5.Length = 3
pad5.Reversed = True

# Sketch on YZ plane
sketch18 = body.newObject("Sketcher::SketchObject", "Sketch017")
sketch18.AttachmentSupport = (doc.getObject("YZ_Plane"), [""])
sketch18.MapMode = "FlatFace"
sketch18.AttachmentOffset = App.Placement(App.Vector(0, 0, -43.65), App.Rotation())
sketch18.addGeometry([
    Part.LineSegment(App.Vector(-5, -60, 0), App.Vector(-8, -60, 0)),
    Part.LineSegment(App.Vector(-8, -60, 0), App.Vector(-8, -43, 0)),
    Part.LineSegment(App.Vector(-8, -43, 0), App.Vector(-5, -43, 0)),
    Part.LineSegment(App.Vector(-5, -43, 0), App.Vector(-5, -60, 0)),
], False)
sketch18.addConstraint([
    Sketcher.Constraint("Coincident", 0, 2, 1, 1),
    Sketcher.Constraint("Coincident", 1, 2, 2, 1),
    Sketcher.Constraint("Coincident", 2, 2, 3, 1),
    Sketcher.Constraint("Coincident", 3, 2, 0, 1),
    Sketcher.Constraint("Horizontal", 0),
    Sketcher.Constraint("Vertical", 1),
    Sketcher.Constraint("Horizontal", 2),
    Sketcher.Constraint("Vertical", 3),
    Sketcher.Constraint("DistanceX", 0, 2, 0, 1, 3.0),
    Sketcher.Constraint("DistanceY", 1, 1, 1, 2, 17.0),
    Sketcher.Constraint("DistanceX", 0, 2, -1, 1, 8.0),
    Sketcher.Constraint("DistanceY", 0, 2, -1, 1, 60.0),
])
pad6 = body.newObject("PartDesign::Pad", "Pad005")
pad6.Profile = sketch18
pad6.Length = 14
pad6.Reversed = True

# Sketch on YZ plane
sketch19 = body.newObject("Sketcher::SketchObject", "Sketch018")
sketch19.AttachmentSupport = (doc.getObject("YZ_Plane"), [""])
sketch19.MapMode = "FlatFace"
sketch19.AttachmentOffset = App.Placement(App.Vector(0, 0, 4.65), App.Rotation())
sketch19.addGeometry([
    Part.LineSegment(App.Vector(-5, -43, 0), App.Vector(-8, -43, 0)),
    Part.LineSegment(App.Vector(-8, -43, 0), App.Vector(-8, -60, 0)),
    Part.LineSegment(App.Vector(-8, -60, 0), App.Vector(-5, -60, 0)),
    Part.LineSegment(App.Vector(-5, -60, 0), App.Vector(-5, -43, 0)),
], False)
sketch19.addConstraint([
    Sketcher.Constraint("Coincident", 0, 2, 1, 1),
    Sketcher.Constraint("Coincident", 1, 2, 2, 1),
    Sketcher.Constraint("Coincident", 2, 2, 3, 1),
    Sketcher.Constraint("Coincident", 3, 2, 0, 1),
    Sketcher.Constraint("Horizontal", 0),
    Sketcher.Constraint("Vertical", 1),
    Sketcher.Constraint("Horizontal", 2),
    Sketcher.Constraint("Vertical", 3),
    Sketcher.Constraint("DistanceX", 0, 2, 0, 1, 3.0),
    Sketcher.Constraint("DistanceY", 1, 2, 1, 1, 17.0),
    Sketcher.Constraint("DistanceX", 0, 2, -1, 1, 8.0),
    Sketcher.Constraint("DistanceY", 0, 2, -1, 1, 43.0),
])
pad7 = body.newObject("PartDesign::Pad", "Pad006")
pad7.Profile = sketch19
pad7.Length = 15

# Sketch on XZ plane
sketch20 = body.newObject("Sketcher::SketchObject", "Sketch019")
sketch20.AttachmentSupport = (doc.getObject("XZ_Plane"), [""])
sketch20.MapMode = "FlatFace"
sketch20.addGeometry([
    Part.Circle(App.Vector(-50, -52, 0), App.Vector(0, 0, 1), 2.5),
    Part.Circle(App.Vector(12, -52, 0), App.Vector(0, 0, 1), 2.5),
], False)
sketch20.addConstraint([
    Sketcher.Constraint("Equal", 0, 1),
    Sketcher.Constraint("Horizontal", 0, 3, 1, 3),
    Sketcher.Constraint("Diameter", 0, 5.0),
    Sketcher.Constraint("DistanceX", 0, 3, -1, 1, 50.0),
    Sketcher.Constraint("DistanceY", 0, 3, -1, 1, 52.0),
    Sketcher.Constraint("DistanceX", -1, 1, 1, 3, 12.0),
])
pocket13 = body.newObject("PartDesign::Pocket", "Pocket012")
pocket13.Profile = sketch20
pocket13.Length = 10
pocket13.Reversed = True

# Sketch on XY plane
sketch21 = body.newObject("Sketcher::SketchObject", "Sketch020")
sketch21.AttachmentSupport = (doc.getObject("XY_Plane"), [""])
sketch21.MapMode = "FlatFace"
sketch21.AttachmentOffset = App.Placement(App.Vector(0, 0, -60), App.Rotation())
sketch21.addGeometry([
    Part.LineSegment(App.Vector(60, -5, 0), App.Vector(60, -48.79756, 0)),
    Part.LineSegment(App.Vector(60, -48.79756, 0), App.Vector(-79.545472, -48.79756, 0)),
    Part.LineSegment(App.Vector(-79.545472, -48.79756, 0), App.Vector(-79.545472, -5, 0)),
    Part.LineSegment(App.Vector(-79.545472, -5, 0), App.Vector(60, -5, 0)),
], False)
sketch21.addConstraint([
    Sketcher.Constraint("Coincident", 0, 2, 1, 1),
    Sketcher.Constraint("Coincident", 1, 2, 2, 1),
    Sketcher.Constraint("Coincident", 2, 2, 3, 1),
    Sketcher.Constraint("Coincident", 3, 2, 0, 1),
    Sketcher.Constraint("Vertical", 0),
    Sketcher.Constraint("Horizontal", 1),
    Sketcher.Constraint("Vertical", 2),
    Sketcher.Constraint("Horizontal", 3),
    Sketcher.Constraint("DistanceX", -1, 1, 0, 2, 60.0),
    Sketcher.Constraint("DistanceY", 2, 2, -1, 1, 5.0),
    Sketcher.Constraint("DistanceX", 1, 2, 1, 1, 139.545472),
    Sketcher.Constraint("DistanceY", 0, 2, 0, 1, 43.79756),
])
pocket14 = body.newObject("PartDesign::Pocket", "Pocket013")
pocket14.Profile = sketch21
pocket14.Length = 120
pocket14.Reversed = True
doc.recompute()

fillet2 = body.newObject("PartDesign::Fillet", "Fillet001")
fillet2.Base = (pocket14, edges_at(pocket14, [(60, -2.5, -60)]))
fillet2.Radius = 10
doc.recompute()

fillet3 = body.newObject("PartDesign::Fillet", "Fillet002")
fillet3.Base = (fillet2, edges_at(fillet2, [(-60, -2.5, -60)]))
fillet3.Radius = 10
doc.recompute()

fillet4 = body.newObject("PartDesign::Fillet", "Fillet003")
fillet4.Base = (fillet3, edges_at(fillet3, [(-60, -2.5, 60)]))
fillet4.Radius = 10
doc.recompute()

fillet5 = body.newObject("PartDesign::Fillet", "Fillet004")
fillet5.Base = (fillet4, edges_at(fillet4, [(60, -2.5, 60)]))
fillet5.Radius = 10

# Sketch on XZ plane
sketch22 = body.newObject("Sketcher::SketchObject", "Sketch021")
sketch22.AttachmentSupport = (doc.getObject("XZ_Plane"), [""])
sketch22.MapMode = "FlatFace"
sketch22.AttachmentOffset = App.Placement(App.Vector(0, 0, -10), App.Rotation())
sketch22.addGeometry(Part.Circle(App.Vector(0, 0, 0), App.Vector(0, 0, 1), 8.55), False)
sketch22.addConstraint([
    Sketcher.Constraint("Coincident", 0, 3, -1, 1),
    Sketcher.Constraint("Diameter", 0, 17.1),
])
pocket15 = body.newObject("PartDesign::Pocket", "Pocket014")
pocket15.Profile = sketch22
pocket15.Length = 6.2
pocket15.Reversed = True

doc.recompute()
